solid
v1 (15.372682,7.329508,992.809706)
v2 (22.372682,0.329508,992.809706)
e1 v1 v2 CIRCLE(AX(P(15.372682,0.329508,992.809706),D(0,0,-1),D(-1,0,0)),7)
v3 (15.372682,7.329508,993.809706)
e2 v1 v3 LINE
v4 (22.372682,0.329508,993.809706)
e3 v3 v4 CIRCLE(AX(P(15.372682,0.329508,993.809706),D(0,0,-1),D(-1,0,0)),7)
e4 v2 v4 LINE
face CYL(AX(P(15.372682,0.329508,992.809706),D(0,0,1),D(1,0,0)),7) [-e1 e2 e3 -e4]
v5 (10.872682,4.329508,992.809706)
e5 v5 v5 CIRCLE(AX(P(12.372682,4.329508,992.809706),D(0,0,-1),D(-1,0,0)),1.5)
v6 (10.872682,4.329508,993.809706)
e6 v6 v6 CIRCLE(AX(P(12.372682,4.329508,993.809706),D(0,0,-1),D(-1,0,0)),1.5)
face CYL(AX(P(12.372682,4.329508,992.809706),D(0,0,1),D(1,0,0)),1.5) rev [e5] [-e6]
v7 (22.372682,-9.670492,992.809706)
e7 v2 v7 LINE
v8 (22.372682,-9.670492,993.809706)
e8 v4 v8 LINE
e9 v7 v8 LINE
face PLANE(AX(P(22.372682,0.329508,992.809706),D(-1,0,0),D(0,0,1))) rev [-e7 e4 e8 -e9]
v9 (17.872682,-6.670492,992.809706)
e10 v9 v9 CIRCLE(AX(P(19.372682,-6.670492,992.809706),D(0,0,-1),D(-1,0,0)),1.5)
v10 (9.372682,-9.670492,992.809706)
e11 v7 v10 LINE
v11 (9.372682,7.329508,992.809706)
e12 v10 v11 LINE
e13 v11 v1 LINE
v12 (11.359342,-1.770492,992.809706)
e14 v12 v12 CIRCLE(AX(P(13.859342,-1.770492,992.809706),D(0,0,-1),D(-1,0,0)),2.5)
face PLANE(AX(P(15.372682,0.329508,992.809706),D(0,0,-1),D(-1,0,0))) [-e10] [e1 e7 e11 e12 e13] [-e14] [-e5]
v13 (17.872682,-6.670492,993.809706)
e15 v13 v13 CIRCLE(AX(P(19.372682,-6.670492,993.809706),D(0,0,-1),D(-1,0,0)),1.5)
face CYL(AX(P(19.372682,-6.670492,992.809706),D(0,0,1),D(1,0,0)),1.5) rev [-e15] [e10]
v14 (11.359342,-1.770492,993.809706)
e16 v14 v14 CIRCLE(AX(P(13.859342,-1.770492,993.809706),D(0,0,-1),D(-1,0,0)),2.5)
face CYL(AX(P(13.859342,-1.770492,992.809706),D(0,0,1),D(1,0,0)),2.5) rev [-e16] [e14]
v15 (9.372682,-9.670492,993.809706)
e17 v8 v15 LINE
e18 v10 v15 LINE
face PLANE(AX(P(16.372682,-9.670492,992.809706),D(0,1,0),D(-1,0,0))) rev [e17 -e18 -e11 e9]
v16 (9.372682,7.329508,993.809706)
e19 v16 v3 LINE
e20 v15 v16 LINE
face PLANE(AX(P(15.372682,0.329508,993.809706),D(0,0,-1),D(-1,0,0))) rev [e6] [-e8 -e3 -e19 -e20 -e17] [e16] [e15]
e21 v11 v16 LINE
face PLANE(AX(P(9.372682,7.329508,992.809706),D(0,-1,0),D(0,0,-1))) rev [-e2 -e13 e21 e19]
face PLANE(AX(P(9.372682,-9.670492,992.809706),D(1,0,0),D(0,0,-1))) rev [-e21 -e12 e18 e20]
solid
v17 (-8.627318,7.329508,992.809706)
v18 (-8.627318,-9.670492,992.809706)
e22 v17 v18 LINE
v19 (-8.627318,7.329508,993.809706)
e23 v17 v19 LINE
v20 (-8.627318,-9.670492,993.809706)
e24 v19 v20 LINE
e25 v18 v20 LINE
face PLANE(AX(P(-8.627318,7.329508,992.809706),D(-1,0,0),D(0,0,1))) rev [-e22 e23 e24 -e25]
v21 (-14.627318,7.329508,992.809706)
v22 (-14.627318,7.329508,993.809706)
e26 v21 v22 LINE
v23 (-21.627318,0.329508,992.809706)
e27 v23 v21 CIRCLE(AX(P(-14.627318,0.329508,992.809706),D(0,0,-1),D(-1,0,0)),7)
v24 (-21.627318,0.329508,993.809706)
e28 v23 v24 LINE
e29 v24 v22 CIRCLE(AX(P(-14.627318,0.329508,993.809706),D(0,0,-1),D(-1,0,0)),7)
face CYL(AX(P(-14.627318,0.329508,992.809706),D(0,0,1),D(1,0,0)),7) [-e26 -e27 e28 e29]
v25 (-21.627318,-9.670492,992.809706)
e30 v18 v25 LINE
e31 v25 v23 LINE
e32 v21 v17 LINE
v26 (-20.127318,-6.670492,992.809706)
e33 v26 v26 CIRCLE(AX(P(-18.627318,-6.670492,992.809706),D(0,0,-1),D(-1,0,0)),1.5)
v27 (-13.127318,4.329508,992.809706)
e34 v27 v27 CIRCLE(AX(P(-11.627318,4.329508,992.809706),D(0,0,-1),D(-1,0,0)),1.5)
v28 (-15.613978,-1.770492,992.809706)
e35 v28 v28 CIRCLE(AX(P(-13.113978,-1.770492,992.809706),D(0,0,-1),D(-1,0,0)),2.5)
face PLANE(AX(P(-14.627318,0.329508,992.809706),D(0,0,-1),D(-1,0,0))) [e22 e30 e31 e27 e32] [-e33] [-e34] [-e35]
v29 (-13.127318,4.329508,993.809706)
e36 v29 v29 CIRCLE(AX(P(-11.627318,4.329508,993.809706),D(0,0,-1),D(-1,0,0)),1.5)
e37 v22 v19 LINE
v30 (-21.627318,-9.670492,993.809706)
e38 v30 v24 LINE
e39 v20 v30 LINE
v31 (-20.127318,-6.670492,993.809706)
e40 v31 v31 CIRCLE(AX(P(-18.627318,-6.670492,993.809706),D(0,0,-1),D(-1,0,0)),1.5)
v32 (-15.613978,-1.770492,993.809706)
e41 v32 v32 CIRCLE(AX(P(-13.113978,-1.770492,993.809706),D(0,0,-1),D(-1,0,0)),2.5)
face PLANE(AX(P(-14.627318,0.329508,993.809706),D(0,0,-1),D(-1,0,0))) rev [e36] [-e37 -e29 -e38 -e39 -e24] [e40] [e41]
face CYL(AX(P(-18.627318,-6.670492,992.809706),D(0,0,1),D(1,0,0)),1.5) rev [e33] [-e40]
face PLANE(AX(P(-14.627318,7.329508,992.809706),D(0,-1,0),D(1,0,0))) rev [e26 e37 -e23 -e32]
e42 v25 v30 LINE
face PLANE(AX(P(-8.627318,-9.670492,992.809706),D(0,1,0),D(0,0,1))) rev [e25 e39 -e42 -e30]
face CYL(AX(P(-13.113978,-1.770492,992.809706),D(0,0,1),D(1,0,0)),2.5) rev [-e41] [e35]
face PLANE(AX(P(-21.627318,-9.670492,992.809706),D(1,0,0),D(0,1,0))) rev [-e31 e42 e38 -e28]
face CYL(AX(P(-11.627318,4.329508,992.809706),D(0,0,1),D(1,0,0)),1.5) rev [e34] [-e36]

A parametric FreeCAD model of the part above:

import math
import FreeCAD as App
import Part
import Sketcher

doc = App.newDocument("Part")
body = doc.addObject("PartDesign::Body", "Body")

# Sketch on XY plane
sketch1 = doc.addObject("Sketcher::SketchObject", "Sketch")
body.addObject(sketch1)
sketch1.AttachmentSupport = (doc.XY_Plane, [""])
sketch1.MapMode = "FlatFace"
sketch1.AttachmentOffset = App.Placement(App.Vector(0, 0, 993.809706), App.Rotation())
sketch1.addGeometry([
    Part.LineSegment(App.Vector(9.4, 7.3, 0), App.Vector(15.4, 7.3, 0)),  # 0
    Part.ArcOfCircle(Part.Circle(App.Vector(15.4, 0.3, 0), App.Vector(0, 0, 1), 7), math.radians(0), math.radians(90)),  # 1
    Part.LineSegment(App.Vector(22.4, 0.3, 0), App.Vector(22.4, -9.7, 0)),  # 2
    Part.LineSegment(App.Vector(22.4, -9.7, 0), App.Vector(9.4, -9.7, 0)),  # 3
    Part.LineSegment(App.Vector(9.4, -9.7, 0), App.Vector(9.4, 7.3, 0)),  # 4
    Part.Circle(App.Vector(19.4, -6.7, 0), App.Vector(0, 0, 1), 1.5),  # 5
    Part.Circle(App.Vector(13.9, -1.8, 0), App.Vector(0, 0, 1), 2.5),  # 6
    Part.Circle(App.Vector(12.4, 4.3, 0), App.Vector(0, 0, 1), 1.5),  # 7
], False)
sketch1.addConstraint([
    Sketcher.Constraint("Tangent", 0, 2, 1, 2),
    Sketcher.Constraint("Tangent", 1, 1, 2, 1),
    Sketcher.Constraint("Coincident", 2, 2, 3, 1),
    Sketcher.Constraint("Coincident", 3, 2, 4, 1),
    Sketcher.Constraint("Coincident", 4, 2, 0, 1),
    Sketcher.Constraint("Horizontal", 0),
    Sketcher.Constraint("Vertical", 2),
    Sketcher.Constraint("Horizontal", 3),
    Sketcher.Constraint("Vertical", 4),
    Sketcher.Constraint("Equal", 5, 7),
    Sketcher.Constraint("Diameter", 5, 3.0),
    Sketcher.Constraint("Diameter", 6, 5.0),
    Sketcher.Constraint("Radius", 1, 7.0),
    Sketcher.Constraint("DistanceX", 0, 1, 0, 2, 6.0),
    Sketcher.Constraint("DistanceY", 2, 2, 2, 1, 10.0),
    Sketcher.Constraint("DistanceX", 1, 3, 5, 3, 4.0),
    Sketcher.Constraint("DistanceY", 5, 3, 1, 3, 7.0),
    Sketcher.Constraint("DistanceX", 7, 3, 1, 3, 3.0),
    Sketcher.Constraint("DistanceY", 1, 3, 7, 3, 4.0),
    Sketcher.Constraint("DistanceY", 6, 3, 1, 3, 2.1),
    Sketcher.Constraint("DistanceX", -1, 1, 1, 3, 15.372682),
    Sketcher.Constraint("DistanceX", -1, 1, 6, 3, 13.859342),
    Sketcher.Constraint("DistanceY", -1, 1, 1, 3, 0.329508),
])
pad1 = doc.addObject("PartDesign::Pad", "Pad")
body.addObject(pad1)
pad1.Profile = sketch1
pad1.Length = 1
pad1.Reversed = True
body2 = doc.addObject("PartDesign::Body", "Body001")

# Sketch on XY plane
sketch2 = doc.addObject("Sketcher::SketchObject", "Sketch001")
body2.addObject(sketch2)
sketch2.AttachmentSupport = (doc.getObject("XY_Plane001"), [""])
sketch2.MapMode = "FlatFace"
sketch2.AttachmentOffset = App.Placement(App.Vector(0, 0, 993.809706), App.Rotation())
sketch2.addGeometry([
    Part.LineSegment(App.Vector(-8.6, 7.3, 0), App.Vector(-8.6, -9.7, 0)),  # 0
    Part.LineSegment(App.Vector(-8.6, -9.7, 0), App.Vector(-21.6, -9.7, 0)),  # 1
    Part.LineSegment(App.Vector(-21.6, -9.7, 0), App.Vector(-21.6, 0.3, 0)),  # 2
    Part.ArcOfCircle(Part.Circle(App.Vector(-14.6, 0.3, 0), App.Vector(0, 0, 1), 7), math.radians(90), math.radians(180)),  # 3
    Part.LineSegment(App.Vector(-14.6, 7.3, 0), App.Vector(-8.6, 7.3, 0)),  # 4
    Part.Circle(App.Vector(-13.1, -1.8, 0), App.Vector(0, 0, 1), 2.5),  # 5
    Part.Circle(App.Vector(-18.6, -6.7, 0), App.Vector(0, 0, 1), 1.5),  # 6
    Part.Circle(App.Vector(-11.6, 4.3, 0), App.Vector(0, 0, 1), 1.5),  # 7
], False)
sketch2.addConstraint([
    Sketcher.Constraint("Coincident", 0, 2, 1, 1),
    Sketcher.Constraint("Coincident", 1, 2, 2, 1),
    Sketcher.Constraint("Tangent", 2, 2, 3, 2),
    Sketcher.Constraint("Tangent", 3, 1, 4, 1),
    Sketcher.Constraint("Coincident", 4, 2, 0, 1),
    Sketcher.Constraint("Vertical", 0),
    Sketcher.Constraint("Horizontal", 1),
    Sketcher.Constraint("Vertical", 2),
    Sketcher.Constraint("Horizontal", 4),
    Sketcher.Constraint("Equal", 6, 7),
    Sketcher.Constraint("Diameter", 5, 5.0),
    Sketcher.Constraint("Diameter", 6, 3.0),
    Sketcher.Constraint("Radius", 3, 7.0),
    Sketcher.Constraint("DistanceX", 1, 2, 1, 1, 13.0),
    Sketcher.Constraint("DistanceY", 0, 2, 0, 1, 17.0),
    Sketcher.Constraint("DistanceX", 6, 3, 3, 3, 4.0),
    Sketcher.Constraint("DistanceY", 6, 3, 3, 3, 7.0),
    Sketcher.Constraint("DistanceX", 3, 3, 7, 3, 3.0),
    Sketcher.Constraint("DistanceY", 3, 3, 7, 3, 4.0),
    Sketcher.Constraint("DistanceY", 5, 3, 3, 3, 2.1),
    Sketcher.Constraint("DistanceX", 3, 3, -1, 1, 14.627318),
    Sketcher.Constraint("DistanceX", 5, 3, -1, 1, 13.113978),
    Sketcher.Constraint("DistanceY", -1, 1, 3, 3, 0.329508),
])
pad2 = doc.addObject("PartDesign::Pad", "Pad001")
body2.addObject(pad2)
pad2.Profile = sketch2
pad2.Length = 1
pad2.Reversed = True

doc.recompute()
